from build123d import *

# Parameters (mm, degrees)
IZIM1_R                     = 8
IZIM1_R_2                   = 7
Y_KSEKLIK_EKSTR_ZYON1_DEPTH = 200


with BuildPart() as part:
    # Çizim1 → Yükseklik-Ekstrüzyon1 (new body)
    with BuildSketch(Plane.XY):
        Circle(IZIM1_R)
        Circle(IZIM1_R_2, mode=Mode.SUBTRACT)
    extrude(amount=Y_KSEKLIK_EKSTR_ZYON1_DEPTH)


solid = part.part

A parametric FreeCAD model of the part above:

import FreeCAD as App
import Part
import Sketcher

V = App.Vector

doc = App.newDocument("Part")
body = doc.addObject("PartDesign::Body", "Body")

sketch1 = body.newObject("Sketcher::SketchObject", "Sketch")
sketch1.AttachmentSupport = (doc.getObject("XY_Plane"), [""])
sketch1.MapMode = "FlatFace"
sketch1.addGeometry([
    Part.Circle(V(0, 0, 0), V(0, 0, 1), 8),
    Part.Circle(V(0, 0, 0), V(0, 0, 1), 7),
], False)
sketch1.addConstraint([
    Sketcher.Constraint("Coincident", 0, 3, -1, 1),
    Sketcher.Constraint("Coincident", 1, 3, -1, 1),
    Sketcher.Constraint("Diameter", 0, 16.0),
    Sketcher.Constraint("Diameter", 1, 14.0),
])
pad1 = body.newObject("PartDesign::Pad", "Pad")
pad1.Profile = sketch1
pad1.Length = 200

doc.recompute()
